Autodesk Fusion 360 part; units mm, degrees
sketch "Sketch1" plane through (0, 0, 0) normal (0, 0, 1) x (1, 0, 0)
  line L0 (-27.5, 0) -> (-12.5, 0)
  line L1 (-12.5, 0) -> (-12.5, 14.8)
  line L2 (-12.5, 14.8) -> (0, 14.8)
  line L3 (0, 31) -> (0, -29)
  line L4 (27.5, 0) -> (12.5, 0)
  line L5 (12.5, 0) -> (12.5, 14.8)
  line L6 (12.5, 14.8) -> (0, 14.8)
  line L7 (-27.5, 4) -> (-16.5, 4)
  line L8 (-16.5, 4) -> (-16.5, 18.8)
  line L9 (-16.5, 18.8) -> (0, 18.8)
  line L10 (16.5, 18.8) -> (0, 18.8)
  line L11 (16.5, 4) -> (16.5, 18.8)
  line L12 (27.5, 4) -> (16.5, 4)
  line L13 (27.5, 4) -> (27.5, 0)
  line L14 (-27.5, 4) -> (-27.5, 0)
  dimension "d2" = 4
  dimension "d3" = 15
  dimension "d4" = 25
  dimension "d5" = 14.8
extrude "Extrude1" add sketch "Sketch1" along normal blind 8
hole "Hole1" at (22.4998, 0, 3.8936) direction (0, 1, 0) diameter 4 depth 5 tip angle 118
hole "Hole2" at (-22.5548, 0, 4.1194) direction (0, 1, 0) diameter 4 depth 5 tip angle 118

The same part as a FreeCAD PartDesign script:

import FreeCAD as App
import Part
import Sketcher
Q = App.Units.Quantity


def add_polygon(sketch, points):
    """Adds a closed chain of lines whose ends are joined by coincident constraints."""
    first, n = sketch.GeometryCount, len(points)
    for a, b in zip(points, points[1:] + points[:1]):
        sketch.addGeometry(Part.LineSegment(App.Vector(*a, 0), App.Vector(*b, 0)), False)
    for i in range(n):
        sketch.addConstraint(Sketcher.Constraint("Coincident", first + i, 2, first + (i + 1) % n, 1))

doc = App.newDocument("Part")
body = doc.addObject("PartDesign::Body", "Body")

sketch1 = doc.addObject("Sketcher::SketchObject", "Sketch")
body.addObject(sketch1)
sketch1.AttachmentSupport = (doc.XY_Plane, [""])
sketch1.MapMode = "FlatFace"
add_polygon(sketch1, [(-27.5, 4), (-27.5, 0), (-12.5, 0), (-12.5, 14.8), (12.5, 14.8), (12.5, 0), (27.5, 0), (27.5, 4), (16.5, 4), (16.5, 18.8), (-16.5, 18.8), (-16.5, 4)])
sketch1.addConstraint([
    Sketcher.Constraint("Vertical", 0),
    Sketcher.Constraint("Horizontal", 1),
    Sketcher.Constraint("Vertical", 2),
    Sketcher.Constraint("Horizontal", 3),
    Sketcher.Constraint("Vertical", 4),
    Sketcher.Constraint("Horizontal", 5),
    Sketcher.Constraint("Vertical", 6),
    Sketcher.Constraint("Horizontal", 7),
    Sketcher.Constraint("Vertical", 8),
    Sketcher.Constraint("Horizontal", 9),
    Sketcher.Constraint("Vertical", 10),
    Sketcher.Constraint("Horizontal", 11),
    Sketcher.Constraint("Symmetric", 1, 2, 4, 2, -1, 1),
    Sketcher.Constraint("Symmetric", 0, 2, 5, 2, -2),
    Sketcher.Constraint("Symmetric", 7, 2, 10, 2, -2),
    Sketcher.Constraint("Equal", 4, 8),
    Sketcher.Constraint("DistanceX", 1, 1, 1, 2, Q("15 mm")),
    Sketcher.Constraint("DistanceX", 3, 1, 3, 2, Q("25 mm")),
    Sketcher.Constraint("DistanceY", 0, 2, 0, 1, Q("4 mm")),
    Sketcher.Constraint("DistanceY", 2, 1, 2, 2, Q("14.8 mm")),
    Sketcher.Constraint("DistanceX", 4, 2, 7, 2, Q("4 mm")),
])
pad1 = doc.addObject("PartDesign::Pad", "Pad")
body.addObject(pad1)
pad1.Profile = sketch1
pad1.Length = 8

sketch2 = doc.addObject("Sketcher::SketchObject", "Sketch001")
body.addObject(sketch2)
sketch2.AttachmentSupport = (doc.XZ_Plane, [""])
sketch2.MapMode = "FlatFace"
sketch2.addGeometry(Part.Circle(App.Vector(22.5, 3.9, 0), App.Vector(0, 0, 1), 2), False)
sketch2.addConstraint([
    Sketcher.Constraint("Diameter", 0, Q("4 mm")),
    Sketcher.Constraint("DistanceX", -1, 1, 0, 3, Q("22.4998 mm")),
    Sketcher.Constraint("DistanceY", -1, 1, 0, 3, Q("3.8936 mm")),
])
doc.recompute()
hole = doc.addObject("PartDesign::Hole", "Hole")
body.addObject(hole)
hole.Profile = sketch2
hole.ThreadType = "None"
hole.Diameter = 4
hole.DepthType = "Dimension"
hole.Depth = 5
hole.DrillPoint = "Angled"
hole.DrillPointAngle = 118

sketch3 = doc.addObject("Sketcher::SketchObject", "Sketch002")
body.addObject(sketch3)
sketch3.AttachmentSupport = (doc.XZ_Plane, [""])
sketch3.MapMode = "FlatFace"
sketch3.addGeometry(Part.Circle(App.Vector(-22.6, 4.1, 0), App.Vector(0, 0, 1), 2), False)
sketch3.addConstraint([
    Sketcher.Constraint("Diameter", 0, Q("4 mm")),
    Sketcher.Constraint("DistanceX", 0, 3, -1, 1, Q("22.5548 mm")),
    Sketcher.Constraint("DistanceY", -1, 1, 0, 3, Q("4.1194 mm")),
])
doc.recompute()
hole2 = doc.addObject("PartDesign::Hole", "Hole001")
body.addObject(hole2)
hole2.Profile = sketch3
hole2.ThreadType = "None"
hole2.Diameter = 4
hole2.DepthType = "Dimension"
hole2.Depth = 5
hole2.DrillPoint = "Angled"
hole2.DrillPointAngle = 118

doc.recompute()
